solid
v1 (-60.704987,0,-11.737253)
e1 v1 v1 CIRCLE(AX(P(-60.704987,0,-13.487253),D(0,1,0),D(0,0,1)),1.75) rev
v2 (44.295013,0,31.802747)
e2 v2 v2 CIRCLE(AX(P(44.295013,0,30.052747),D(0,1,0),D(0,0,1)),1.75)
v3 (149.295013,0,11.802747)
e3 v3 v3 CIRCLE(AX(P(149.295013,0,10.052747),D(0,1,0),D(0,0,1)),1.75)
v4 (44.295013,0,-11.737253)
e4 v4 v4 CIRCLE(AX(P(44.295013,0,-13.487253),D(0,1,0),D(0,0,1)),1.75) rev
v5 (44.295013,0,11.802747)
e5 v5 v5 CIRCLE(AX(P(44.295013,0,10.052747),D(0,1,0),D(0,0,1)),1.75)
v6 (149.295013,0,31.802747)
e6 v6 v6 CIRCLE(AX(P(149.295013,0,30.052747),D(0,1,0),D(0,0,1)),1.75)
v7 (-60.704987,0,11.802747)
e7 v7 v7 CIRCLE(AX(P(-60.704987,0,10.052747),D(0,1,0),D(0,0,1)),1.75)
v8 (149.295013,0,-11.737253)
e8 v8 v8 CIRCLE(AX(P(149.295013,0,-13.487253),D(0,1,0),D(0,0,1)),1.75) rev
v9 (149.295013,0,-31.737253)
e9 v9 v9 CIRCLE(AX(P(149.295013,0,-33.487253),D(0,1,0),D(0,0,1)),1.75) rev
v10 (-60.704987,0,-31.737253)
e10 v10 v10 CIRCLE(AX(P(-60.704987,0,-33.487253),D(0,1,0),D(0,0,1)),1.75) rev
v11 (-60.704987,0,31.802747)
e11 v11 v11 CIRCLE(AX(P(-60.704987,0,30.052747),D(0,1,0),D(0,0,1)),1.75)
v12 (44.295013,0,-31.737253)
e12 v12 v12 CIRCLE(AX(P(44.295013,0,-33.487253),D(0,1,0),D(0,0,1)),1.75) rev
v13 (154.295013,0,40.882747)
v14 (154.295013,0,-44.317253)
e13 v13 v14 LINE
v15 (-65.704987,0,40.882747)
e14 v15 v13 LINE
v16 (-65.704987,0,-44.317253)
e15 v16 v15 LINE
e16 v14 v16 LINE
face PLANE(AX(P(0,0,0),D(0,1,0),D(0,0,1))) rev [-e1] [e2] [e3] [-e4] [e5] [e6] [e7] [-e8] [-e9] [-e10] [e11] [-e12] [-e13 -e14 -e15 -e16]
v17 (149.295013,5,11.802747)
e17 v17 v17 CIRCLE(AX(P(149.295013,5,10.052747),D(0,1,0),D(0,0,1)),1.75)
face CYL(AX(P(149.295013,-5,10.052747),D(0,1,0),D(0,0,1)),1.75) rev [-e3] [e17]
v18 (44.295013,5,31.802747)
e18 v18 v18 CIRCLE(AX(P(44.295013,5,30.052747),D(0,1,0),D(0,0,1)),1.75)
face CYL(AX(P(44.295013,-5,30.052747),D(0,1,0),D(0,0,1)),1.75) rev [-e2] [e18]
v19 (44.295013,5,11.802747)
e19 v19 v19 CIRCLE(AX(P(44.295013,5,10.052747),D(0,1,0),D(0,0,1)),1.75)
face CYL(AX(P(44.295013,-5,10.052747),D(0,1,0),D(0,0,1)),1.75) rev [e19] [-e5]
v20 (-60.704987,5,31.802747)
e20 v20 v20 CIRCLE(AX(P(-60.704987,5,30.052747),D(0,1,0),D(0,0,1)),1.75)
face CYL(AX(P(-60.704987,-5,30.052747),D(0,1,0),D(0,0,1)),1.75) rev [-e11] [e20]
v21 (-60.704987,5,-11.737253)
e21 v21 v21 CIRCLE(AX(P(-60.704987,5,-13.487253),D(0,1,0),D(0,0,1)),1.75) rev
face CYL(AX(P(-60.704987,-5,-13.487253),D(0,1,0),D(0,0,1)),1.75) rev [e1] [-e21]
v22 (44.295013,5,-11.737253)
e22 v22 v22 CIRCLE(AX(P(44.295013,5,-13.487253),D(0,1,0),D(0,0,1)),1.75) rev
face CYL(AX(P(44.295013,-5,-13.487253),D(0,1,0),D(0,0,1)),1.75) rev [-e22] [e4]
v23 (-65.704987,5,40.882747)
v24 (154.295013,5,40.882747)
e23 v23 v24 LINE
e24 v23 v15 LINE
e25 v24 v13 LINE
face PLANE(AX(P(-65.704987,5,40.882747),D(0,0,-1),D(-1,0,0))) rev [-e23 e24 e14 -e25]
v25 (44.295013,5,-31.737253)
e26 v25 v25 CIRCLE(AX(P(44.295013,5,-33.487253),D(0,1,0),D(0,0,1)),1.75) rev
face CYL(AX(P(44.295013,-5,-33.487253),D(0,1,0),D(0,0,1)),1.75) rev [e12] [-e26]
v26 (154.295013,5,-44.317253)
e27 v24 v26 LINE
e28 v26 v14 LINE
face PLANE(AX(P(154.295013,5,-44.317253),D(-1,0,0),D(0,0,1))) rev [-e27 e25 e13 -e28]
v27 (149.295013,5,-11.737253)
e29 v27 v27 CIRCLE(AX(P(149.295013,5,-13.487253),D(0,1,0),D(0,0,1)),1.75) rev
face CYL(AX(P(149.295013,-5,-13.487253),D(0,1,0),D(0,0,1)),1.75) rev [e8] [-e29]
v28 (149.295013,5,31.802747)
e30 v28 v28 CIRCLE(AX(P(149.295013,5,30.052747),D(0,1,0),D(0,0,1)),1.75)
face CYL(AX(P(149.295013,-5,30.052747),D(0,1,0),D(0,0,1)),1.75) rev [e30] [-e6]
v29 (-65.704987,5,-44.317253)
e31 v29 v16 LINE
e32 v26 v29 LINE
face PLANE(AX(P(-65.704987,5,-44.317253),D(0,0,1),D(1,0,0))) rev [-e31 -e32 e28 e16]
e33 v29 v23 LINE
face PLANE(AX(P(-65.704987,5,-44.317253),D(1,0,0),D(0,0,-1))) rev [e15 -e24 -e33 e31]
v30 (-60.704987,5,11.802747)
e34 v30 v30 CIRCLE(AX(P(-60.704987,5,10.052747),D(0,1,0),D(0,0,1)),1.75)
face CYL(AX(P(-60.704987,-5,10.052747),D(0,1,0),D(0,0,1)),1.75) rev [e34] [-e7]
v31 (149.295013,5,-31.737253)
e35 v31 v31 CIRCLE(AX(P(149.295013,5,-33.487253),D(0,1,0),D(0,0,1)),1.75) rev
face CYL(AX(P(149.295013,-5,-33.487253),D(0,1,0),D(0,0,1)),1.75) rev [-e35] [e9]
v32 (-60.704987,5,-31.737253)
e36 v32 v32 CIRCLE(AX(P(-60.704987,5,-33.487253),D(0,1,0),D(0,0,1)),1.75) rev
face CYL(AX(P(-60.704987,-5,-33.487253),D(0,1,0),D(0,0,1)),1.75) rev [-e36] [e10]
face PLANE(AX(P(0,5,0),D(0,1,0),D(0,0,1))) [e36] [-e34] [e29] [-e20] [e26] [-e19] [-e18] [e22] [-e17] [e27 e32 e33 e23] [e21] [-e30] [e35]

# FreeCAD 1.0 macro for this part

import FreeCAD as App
import Part
import Sketcher
from FreeCAD import Vector
Q = App.Units.Quantity

doc = App.newDocument("Part")
body = doc.addObject("PartDesign::Body", "Body")

# Sketch on XZ plane
sketch1 = body.newObject("Sketcher::SketchObject", "Sketch")
sketch1.AttachmentSupport = (doc.getObject("XZ_Plane"), [""])
sketch1.MapMode = "FlatFace"
sketch1.addGeometry(Part.LineSegment(Vector(-66, -44, 0), Vector(-66, 41, 0)), False)
sketch1.addGeometry(Part.LineSegment(Vector(-66, 41, 0), Vector(154, 41, 0)), False)
sketch1.addGeometry(Part.LineSegment(Vector(154, 41, 0), Vector(154, -44, 0)), False)
sketch1.addGeometry(Part.LineSegment(Vector(154, -44, 0), Vector(-66, -44, 0)), False)
sketch1.addConstraint(Sketcher.Constraint("Coincident", 0, 2, 1, 1))
sketch1.addConstraint(Sketcher.Constraint("Coincident", 1, 2, 2, 1))
sketch1.addConstraint(Sketcher.Constraint("Coincident", 2, 2, 3, 1))
sketch1.addConstraint(Sketcher.Constraint("Coincident", 3, 2, 0, 1))
sketch1.addConstraint(Sketcher.Constraint("Vertical", 0))
sketch1.addConstraint(Sketcher.Constraint("Horizontal", 1))
sketch1.addConstraint(Sketcher.Constraint("Vertical", 2))
sketch1.addConstraint(Sketcher.Constraint("Horizontal", 3))
sketch1.addConstraint(Sketcher.Constraint("DistanceX", 1, 1, 1, 2, Q("220 mm")))
sketch1.addConstraint(Sketcher.Constraint("DistanceY", 0, 1, 0, 2, Q("85.2 mm")))
sketch1.addConstraint(Sketcher.Constraint("DistanceX", 0, 2, -1, 1, Q("65.704987 mm")))
sketch1.addConstraint(Sketcher.Constraint("DistanceY", -1, 1, 0, 2, Q("40.882747 mm")))
pad1 = body.newObject("PartDesign::Pad", "Pad")
pad1.Profile = sketch1
pad1.Length = 5
pad1.Reversed = True

# Sketch on XZ plane
sketch2 = body.newObject("Sketcher::SketchObject", "Sketch001")
sketch2.AttachmentSupport = (doc.getObject("XZ_Plane"), [""])
sketch2.MapMode = "FlatFace"
sketch2.AttachmentOffset = App.Placement(Vector(0, 0, -5), App.Rotation())
sketch2.addGeometry(Part.Circle(Vector(149.3, 30.1, 0), Vector(0, 0, 1), 1.8), False)
sketch2.addGeometry(Part.Circle(Vector(149.3, 10.1, 0), Vector(0, 0, 1), 1.8), False)
sketch2.addGeometry(Part.Circle(Vector(44.3, 10.1, 0), Vector(0, 0, 1), 1.8), False)
sketch2.addGeometry(Part.Circle(Vector(44.3, 30.1, 0), Vector(0, 0, 1), 1.8), False)
sketch2.addGeometry(Part.Circle(Vector(44.3, -13.5, 0), Vector(0, 0, 1), 1.8), False)
sketch2.addGeometry(Part.Circle(Vector(44.3, -33.5, 0), Vector(0, 0, 1), 1.8), False)
sketch2.addGeometry(Part.Circle(Vector(149.3, -13.5, 0), Vector(0, 0, 1), 1.8), False)
sketch2.addGeometry(Part.Circle(Vector(149.3, -33.5, 0), Vector(0, 0, 1), 1.8), False)
sketch2.addGeometry(Part.Circle(Vector(-60.7, -33.5, 0), Vector(0, 0, 1), 1.8), False)
sketch2.addGeometry(Part.Circle(Vector(-60.7, -13.5, 0), Vector(0, 0, 1), 1.8), False)
sketch2.addGeometry(Part.Circle(Vector(-60.7, 10.1, 0), Vector(0, 0, 1), 1.8), False)
sketch2.addGeometry(Part.Circle(Vector(-60.7, 30.1, 0), Vector(0, 0, 1), 1.8), False)
sketch2.addConstraint(Sketcher.Constraint("Equal", 0, 1))
sketch2.addConstraint(Sketcher.Constraint("Equal", 1, 2))
sketch2.addConstraint(Sketcher.Constraint("Equal", 2, 3))
sketch2.addConstraint(Sketcher.Constraint("Equal", 3, 4))
sketch2.addConstraint(Sketcher.Constraint("Equal", 4, 5))
sketch2.addConstraint(Sketcher.Constraint("Equal", 5, 6))
sketch2.addConstraint(Sketcher.Constraint("Equal", 6, 7))
sketch2.addConstraint(Sketcher.Constraint("Equal", 7, 8))
sketch2.addConstraint(Sketcher.Constraint("Equal", 8, 9))
sketch2.addConstraint(Sketcher.Constraint("Equal", 9, 10))
sketch2.addConstraint(Sketcher.Constraint("Equal", 10, 11))
sketch2.addConstraint(Sketcher.Constraint("Horizontal", 1, 3, 2, 3))
sketch2.addConstraint(Sketcher.Constraint("Horizontal", 0, 3, 3, 3))
sketch2.addConstraint(Sketcher.Constraint("Horizontal", 4, 3, 6, 3))
sketch2.addConstraint(Sketcher.Constraint("Horizontal", 5, 3, 7, 3))
sketch2.addConstraint(Sketcher.Constraint("Horizontal", 7, 3, 8, 3))
sketch2.addConstraint(Sketcher.Constraint("Horizontal", 6, 3, 9, 3))
sketch2.addConstraint(Sketcher.Constraint("Horizontal", 2, 3, 10, 3))
sketch2.addConstraint(Sketcher.Constraint("Horizontal", 3, 3, 11, 3))
sketch2.addConstraint(Sketcher.Constraint("Vertical", 0, 3, 1, 3))
sketch2.addConstraint(Sketcher.Constraint("Vertical", 2, 3, 3, 3))
sketch2.addConstraint(Sketcher.Constraint("Vertical", 3, 3, 4, 3))
sketch2.addConstraint(Sketcher.Constraint("Vertical", 4, 3, 5, 3))
sketch2.addConstraint(Sketcher.Constraint("Vertical", 1, 3, 6, 3))
sketch2.addConstraint(Sketcher.Constraint("Vertical", 6, 3, 7, 3))
sketch2.addConstraint(Sketcher.Constraint("Vertical", 8, 3, 9, 3))
sketch2.addConstraint(Sketcher.Constraint("Vertical", 9, 3, 10, 3))
sketch2.addConstraint(Sketcher.Constraint("Vertical", 10, 3, 11, 3))
sketch2.addConstraint(Sketcher.Constraint("Diameter", 0, Q("3.5 mm")))
sketch2.addConstraint(Sketcher.Constraint("DistanceY", 1, 3, 0, 3, Q("20 mm")))
sketch2.addConstraint(Sketcher.Constraint("DistanceX", 2, 3, 1, 3, Q("105 mm")))
sketch2.addConstraint(Sketcher.Constraint("DistanceY", 5, 3, 4, 3, Q("20 mm")))
sketch2.addConstraint(Sketcher.Constraint("DistanceX", 8, 3, 5, 3, Q("105 mm")))
sketch2.addConstraint(Sketcher.Constraint("DistanceY", 4, 3, 2, 3, Q("23.54 mm")))
sketch2.addConstraint(Sketcher.Constraint("DistanceX", -1, 1, 0, 3, Q("149.295013 mm")))
sketch2.addConstraint(Sketcher.Constraint("DistanceY", -1, 1, 0, 3, Q("30.052747 mm")))
pocket1 = body.newObject("PartDesign::Pocket", "Pocket")
pocket1.Profile = sketch2
pocket1.Length = 10
pocket1.Reversed = True

doc.recompute()
